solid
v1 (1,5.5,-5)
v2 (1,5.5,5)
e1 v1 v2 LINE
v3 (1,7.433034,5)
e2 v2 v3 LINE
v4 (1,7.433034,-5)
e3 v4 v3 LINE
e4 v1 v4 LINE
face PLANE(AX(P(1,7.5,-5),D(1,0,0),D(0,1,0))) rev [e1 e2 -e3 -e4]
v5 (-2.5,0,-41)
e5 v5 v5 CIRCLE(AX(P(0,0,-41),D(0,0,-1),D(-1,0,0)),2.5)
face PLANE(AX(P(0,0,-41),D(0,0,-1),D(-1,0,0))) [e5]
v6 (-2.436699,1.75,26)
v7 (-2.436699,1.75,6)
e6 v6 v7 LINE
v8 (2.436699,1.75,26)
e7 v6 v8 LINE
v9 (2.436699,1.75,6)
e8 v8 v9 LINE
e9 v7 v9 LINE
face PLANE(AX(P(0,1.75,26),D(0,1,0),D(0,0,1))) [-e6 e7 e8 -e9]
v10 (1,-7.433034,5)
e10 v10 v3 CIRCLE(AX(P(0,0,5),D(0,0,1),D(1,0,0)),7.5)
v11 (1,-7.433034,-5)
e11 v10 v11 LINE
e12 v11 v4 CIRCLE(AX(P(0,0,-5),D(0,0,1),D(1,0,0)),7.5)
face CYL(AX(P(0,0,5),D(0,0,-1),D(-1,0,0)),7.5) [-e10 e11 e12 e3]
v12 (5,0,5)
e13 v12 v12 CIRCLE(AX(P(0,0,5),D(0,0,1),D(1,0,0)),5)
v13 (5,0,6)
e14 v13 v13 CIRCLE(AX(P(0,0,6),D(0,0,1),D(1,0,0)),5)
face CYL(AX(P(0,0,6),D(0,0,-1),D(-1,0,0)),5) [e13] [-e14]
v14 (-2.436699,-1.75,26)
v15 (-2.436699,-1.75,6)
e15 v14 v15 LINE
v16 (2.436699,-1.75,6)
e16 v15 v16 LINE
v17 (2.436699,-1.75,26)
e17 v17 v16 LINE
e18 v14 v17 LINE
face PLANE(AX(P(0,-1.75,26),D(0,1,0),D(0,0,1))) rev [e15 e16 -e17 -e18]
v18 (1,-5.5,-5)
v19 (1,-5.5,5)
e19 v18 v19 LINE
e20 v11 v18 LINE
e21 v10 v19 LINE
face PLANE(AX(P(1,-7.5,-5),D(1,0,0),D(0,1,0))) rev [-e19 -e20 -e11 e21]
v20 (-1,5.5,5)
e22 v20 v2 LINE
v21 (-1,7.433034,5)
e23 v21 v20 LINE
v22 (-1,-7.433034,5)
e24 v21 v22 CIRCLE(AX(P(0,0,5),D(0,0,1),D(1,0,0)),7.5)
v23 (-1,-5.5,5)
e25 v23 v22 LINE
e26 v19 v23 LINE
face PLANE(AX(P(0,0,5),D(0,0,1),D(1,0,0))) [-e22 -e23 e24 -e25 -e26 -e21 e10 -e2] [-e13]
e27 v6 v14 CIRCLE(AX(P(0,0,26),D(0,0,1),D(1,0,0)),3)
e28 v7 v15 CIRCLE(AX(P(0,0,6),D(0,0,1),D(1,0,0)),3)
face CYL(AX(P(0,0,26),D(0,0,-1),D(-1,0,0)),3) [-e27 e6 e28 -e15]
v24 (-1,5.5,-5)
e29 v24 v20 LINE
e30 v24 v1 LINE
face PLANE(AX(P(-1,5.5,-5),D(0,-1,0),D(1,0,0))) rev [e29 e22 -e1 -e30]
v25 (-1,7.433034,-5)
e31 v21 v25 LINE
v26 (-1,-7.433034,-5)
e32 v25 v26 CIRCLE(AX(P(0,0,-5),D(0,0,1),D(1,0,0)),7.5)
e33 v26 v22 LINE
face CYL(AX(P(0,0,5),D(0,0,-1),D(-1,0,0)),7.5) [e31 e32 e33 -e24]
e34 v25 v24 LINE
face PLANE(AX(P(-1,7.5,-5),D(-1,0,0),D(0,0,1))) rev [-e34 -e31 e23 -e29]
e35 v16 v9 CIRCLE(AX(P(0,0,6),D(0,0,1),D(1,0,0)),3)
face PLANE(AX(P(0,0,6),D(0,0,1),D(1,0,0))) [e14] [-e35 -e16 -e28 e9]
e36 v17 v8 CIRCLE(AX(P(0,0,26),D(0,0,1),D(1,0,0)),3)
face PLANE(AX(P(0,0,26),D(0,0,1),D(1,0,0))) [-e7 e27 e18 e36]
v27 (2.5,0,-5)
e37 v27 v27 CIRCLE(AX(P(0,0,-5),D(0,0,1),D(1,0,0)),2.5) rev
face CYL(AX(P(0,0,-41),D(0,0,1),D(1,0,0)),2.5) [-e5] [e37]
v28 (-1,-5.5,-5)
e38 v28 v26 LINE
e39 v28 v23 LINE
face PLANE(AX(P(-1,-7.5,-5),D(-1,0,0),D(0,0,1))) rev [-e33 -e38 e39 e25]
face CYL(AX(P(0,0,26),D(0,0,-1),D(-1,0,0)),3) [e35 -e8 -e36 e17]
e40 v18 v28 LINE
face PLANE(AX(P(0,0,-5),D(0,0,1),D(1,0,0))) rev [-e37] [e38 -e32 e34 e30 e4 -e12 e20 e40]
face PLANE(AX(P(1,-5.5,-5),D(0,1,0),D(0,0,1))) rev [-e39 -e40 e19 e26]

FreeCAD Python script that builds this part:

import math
import FreeCAD as App
import Part
import Sketcher
from FreeCAD import Vector
Q = App.Units.Quantity


def add_polygon(sketch, points):
    """Adds a closed chain of lines whose ends are joined by coincident constraints."""
    first, n = sketch.GeometryCount, len(points)
    for a, b in zip(points, points[1:] + points[:1]):
        sketch.addGeometry(Part.LineSegment(App.Vector(*a, 0), App.Vector(*b, 0)), False)
    for i in range(n):
        sketch.addConstraint(Sketcher.Constraint("Coincident", first + i, 2, first + (i + 1) % n, 1))

doc = App.newDocument("Part")
params = doc.addObject("Spreadsheet::Sheet", "Params")
for row, (alias, value) in enumerate([
    ("sketch1_diameter", "15 mm"),
    ("pad1_length", "10 mm"),
    ("sketch2_diameter", "10 mm"),
    ("pad2_length", "1 mm"),
    ("sketch3_radius", "3 mm"),
    ("pad3_length", "20 mm"),
    ("sketch4_diameter", "5 mm"),
    ("pad4_length", "36 mm"),
    ("sketch5_width", "2 mm"),
    ("pocket1_length", "10 mm"),
], start=1):
    params.set(f"A{row}", alias)
    params.set(f"B{row}", "=" + value)
    params.setAlias(f"B{row}", alias)

body = doc.addObject("PartDesign::Body", "Body")

sketch1 = body.newObject("Sketcher::SketchObject", "Sketch")
sketch1.AttachmentSupport = (doc.getObject("XY_Plane"), [""])
sketch1.MapMode = "FlatFace"
sketch1.addGeometry(Part.Circle(Vector(0, 0, 0), Vector(0, 0, 1), 7.5), False)
sketch1.addConstraint([
    Sketcher.Constraint("Coincident", 0, 3, -1, 1),
    Sketcher.Constraint("Diameter", 0, Q("15 mm")),
])
sketch1.setExpression("Constraints[1]", "Params.sketch1_diameter")
pad1 = body.newObject("PartDesign::Pad", "Pad")
pad1.Profile = sketch1
pad1.setExpression("Length", "Params.pad1_length")
pad1.Midplane = True

sketch2 = body.newObject("Sketcher::SketchObject", "Sketch001")
sketch2.AttachmentSupport = (doc.getObject("XY_Plane"), [""])
sketch2.MapMode = "FlatFace"
sketch2.AttachmentOffset = App.Placement(Vector(0, 0, 5), App.Rotation())
sketch2.addGeometry(Part.Circle(Vector(0, 0, 0), Vector(0, 0, 1), 5), False)
sketch2.addConstraint([
    Sketcher.Constraint("Coincident", 0, 3, -1, 1),
    Sketcher.Constraint("Diameter", 0, Q("10 mm")),
])
sketch2.setExpression("Constraints[1]", "Params.sketch2_diameter")
pad2 = body.newObject("PartDesign::Pad", "Pad001")
pad2.Profile = sketch2
pad2.setExpression("Length", "Params.pad2_length")

sketch3 = body.newObject("Sketcher::SketchObject", "Sketch002")
sketch3.AttachmentSupport = (doc.getObject("XY_Plane"), [""])
sketch3.MapMode = "FlatFace"
sketch3.AttachmentOffset = App.Placement(Vector(0, 0, 6), App.Rotation())
sketch3.addGeometry([
    Part.LineSegment(Vector(2.436699, 1.75, 0), Vector(-2.436699, 1.75, 0)),
    Part.ArcOfCircle(Part.Circle(Vector(0, 0, 0), Vector(0, 0, 1), 3), math.radians(144.314665), math.radians(215.685335)),
    Part.LineSegment(Vector(-2.436699, -1.75, 0), Vector(2.436699, -1.75, 0)),
    Part.ArcOfCircle(Part.Circle(Vector(0, 0, 0), Vector(0, 0, 1), 3), math.radians(-35.685335), math.radians(0)),
    Part.ArcOfCircle(Part.Circle(Vector(0, 0, 0), Vector(0, 0, 1), 3), math.radians(0), math.radians(35.685335)),
], False)
sketch3.addConstraint([
    Sketcher.Constraint("Coincident", 0, 2, 1, 1),
    Sketcher.Constraint("Coincident", 1, 2, 2, 1),
    Sketcher.Constraint("Coincident", 2, 2, 3, 1),
    Sketcher.Constraint("Tangent", 3, 2, 4, 1),
    Sketcher.Constraint("Coincident", 4, 2, 0, 1),
    Sketcher.Constraint("Horizontal", 0),
    Sketcher.Constraint("Horizontal", 2),
    Sketcher.Constraint("Coincident", 1, 3, -1, 1),
    Sketcher.Constraint("Coincident", 3, 3, -1, 1),
    Sketcher.Constraint("Equal", 1, 3),
    Sketcher.Constraint("Equal", 3, 4),
    Sketcher.Constraint("PointOnObject", 3, 2, -1),
    Sketcher.Constraint("Vertical", 0, 2, 1, 2),
    Sketcher.Constraint("Radius", 1, Q("3 mm")),
    Sketcher.Constraint("DistanceY", 1, 2, 0, 2, Q("3.5 mm")),
])
sketch3.setExpression("Constraints[13]", "Params.sketch3_radius")
pad3 = body.newObject("PartDesign::Pad", "Pad002")
pad3.Profile = sketch3
pad3.setExpression("Length", "Params.pad3_length")

sketch4 = body.newObject("Sketcher::SketchObject", "Sketch003")
sketch4.AttachmentSupport = (doc.getObject("XY_Plane"), [""])
sketch4.MapMode = "FlatFace"
sketch4.AttachmentOffset = App.Placement(Vector(0, 0, -5), App.Rotation())
sketch4.addGeometry(Part.Circle(Vector(0, 0, 0), Vector(0, 0, 1), 2.5), False)
sketch4.addConstraint([
    Sketcher.Constraint("Coincident", 0, 3, -1, 1),
    Sketcher.Constraint("Diameter", 0, Q("5 mm")),
])
sketch4.setExpression("Constraints[1]", "Params.sketch4_diameter")
pad4 = body.newObject("PartDesign::Pad", "Pad003")
pad4.Profile = sketch4
pad4.setExpression("Length", "Params.pad4_length")
pad4.Reversed = True

sketch5 = body.newObject("Sketcher::SketchObject", "Sketch004")
sketch5.AttachmentSupport = (doc.getObject("XY_Plane"), [""])
sketch5.MapMode = "FlatFace"
sketch5.AttachmentOffset = App.Placement(Vector(0, 0, 5), App.Rotation())
add_polygon(sketch5, [(-1, 7.5), (-1, 5.5), (1, 5.5), (1, 7.5)])
add_polygon(sketch5, [(-1, -5.5), (-1, -7.5), (1, -7.5), (1, -5.5)])
sketch5.addConstraint([
    Sketcher.Constraint("Vertical", 0),
    Sketcher.Constraint("Horizontal", 1),
    Sketcher.Constraint("Vertical", 2),
    Sketcher.Constraint("Horizontal", 3),
    Sketcher.Constraint("Vertical", 4),
    Sketcher.Constraint("Horizontal", 5),
    Sketcher.Constraint("Vertical", 6),
    Sketcher.Constraint("Horizontal", 7),
    Sketcher.Constraint("Symmetric", 2, 2, 4, 2, -1, 1),
    Sketcher.Constraint("Symmetric", 0, 2, 6, 2, -1, 1),
    Sketcher.Constraint("Vertical", 3, 2, 4, 2),
    Sketcher.Constraint("Equal", 7, 0),
    Sketcher.Constraint("DistanceX", 1, 1, 1, 2, Q("2 mm")),
    Sketcher.Constraint("DistanceY", 4, 2, 0, 2, Q("13 mm")),
])
sketch5.setExpression("Constraints[20]", "Params.sketch5_width")
pocket1 = body.newObject("PartDesign::Pocket", "Pocket")
pocket1.Profile = sketch5
pocket1.setExpression("Length", "Params.pocket1_length")

doc.recompute()
